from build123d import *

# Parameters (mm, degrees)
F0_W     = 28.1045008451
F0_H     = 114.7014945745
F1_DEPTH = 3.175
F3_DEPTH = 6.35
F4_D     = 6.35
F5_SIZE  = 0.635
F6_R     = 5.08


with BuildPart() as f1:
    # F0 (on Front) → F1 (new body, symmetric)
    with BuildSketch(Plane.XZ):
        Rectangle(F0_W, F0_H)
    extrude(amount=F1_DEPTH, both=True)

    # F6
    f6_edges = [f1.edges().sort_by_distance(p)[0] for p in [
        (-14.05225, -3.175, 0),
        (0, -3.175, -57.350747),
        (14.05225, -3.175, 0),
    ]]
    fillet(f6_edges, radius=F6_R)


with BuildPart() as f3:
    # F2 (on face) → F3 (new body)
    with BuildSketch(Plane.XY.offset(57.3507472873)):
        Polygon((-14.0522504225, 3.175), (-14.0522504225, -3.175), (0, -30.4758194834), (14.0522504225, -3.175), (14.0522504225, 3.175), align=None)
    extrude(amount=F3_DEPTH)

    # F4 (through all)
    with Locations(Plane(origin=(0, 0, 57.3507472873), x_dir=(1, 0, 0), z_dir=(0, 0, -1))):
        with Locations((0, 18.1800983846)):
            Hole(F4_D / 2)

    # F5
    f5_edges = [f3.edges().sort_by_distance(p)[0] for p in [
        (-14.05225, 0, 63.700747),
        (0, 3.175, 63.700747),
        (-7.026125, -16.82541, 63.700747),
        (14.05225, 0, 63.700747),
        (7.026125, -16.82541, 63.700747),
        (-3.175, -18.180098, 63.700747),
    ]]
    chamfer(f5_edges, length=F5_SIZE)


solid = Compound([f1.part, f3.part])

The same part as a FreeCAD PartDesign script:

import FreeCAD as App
import Part
import Sketcher
from FreeCAD import Vector
Q = App.Units.Quantity


def edges_at(feature, points):
    """Names of the edges that pass closest to the given points."""
    edges = feature.Shape.Edges
    near = lambda p: min(range(len(edges)), key=lambda i: edges[i].distToShape(Part.Vertex(*p))[0])
    return sorted({f"Edge{near(p) + 1}" for p in points})

doc = App.newDocument("Part")
body = doc.addObject("PartDesign::Body", "Body")

sketch1 = body.newObject("Sketcher::SketchObject", "Sketch")
sketch1.AttachmentSupport = (doc.getObject("XZ_Plane"), [""])
sketch1.MapMode = "FlatFace"
sketch1.addGeometry(Part.LineSegment(Vector(-14, 57, 0), Vector(-14, -57, 0)), False)
sketch1.addGeometry(Part.LineSegment(Vector(-14, -57, 0), Vector(14, -57, 0)), False)
sketch1.addGeometry(Part.LineSegment(Vector(14, -57, 0), Vector(14, 57, 0)), False)
sketch1.addGeometry(Part.LineSegment(Vector(14, 57, 0), Vector(-14, 57, 0)), False)
sketch1.addConstraint(Sketcher.Constraint("Coincident", 0, 2, 1, 1))
sketch1.addConstraint(Sketcher.Constraint("Coincident", 1, 2, 2, 1))
sketch1.addConstraint(Sketcher.Constraint("Coincident", 2, 2, 3, 1))
sketch1.addConstraint(Sketcher.Constraint("Coincident", 3, 2, 0, 1))
sketch1.addConstraint(Sketcher.Constraint("Vertical", 0))
sketch1.addConstraint(Sketcher.Constraint("Horizontal", 1))
sketch1.addConstraint(Sketcher.Constraint("Vertical", 2))
sketch1.addConstraint(Sketcher.Constraint("Horizontal", 3))
sketch1.addConstraint(Sketcher.Constraint("Symmetric", 0, 2, 2, 2, -1, 1))
sketch1.addConstraint(Sketcher.Constraint("DistanceX", 1, 1, 1, 2, 28.104501))
sketch1.addConstraint(Sketcher.Constraint("DistanceY", 0, 2, 0, 1, 114.701495))
pad1 = body.newObject("PartDesign::Pad", "Pad")
pad1.Profile = sketch1
pad1.Length = Q("0.25 in")
pad1.Midplane = True
doc.recompute()

fillet = body.newObject("PartDesign::Fillet", "Fillet")
fillet.Base = (pad1, edges_at(pad1, [(-14.052, -3.175, 0), (0, -3.175, -57.351), (14.052, -3.175, 0)]))
fillet.Radius = Q("0.2 in")
body2 = doc.addObject("PartDesign::Body", "Body001")

sketch2 = body2.newObject("Sketcher::SketchObject", "Sketch001")
sketch2.AttachmentSupport = (doc.getObject("XY_Plane001"), [""])
sketch2.MapMode = "FlatFace"
sketch2.AttachmentOffset = App.Placement(Vector(0, 0, 57.350747), App.Rotation())
sketch2.addGeometry(Part.LineSegment(Vector(-14, 3, 0), Vector(-14, -3, 0)), False)
sketch2.addGeometry(Part.LineSegment(Vector(-14, -3, 0), Vector(0, -30, 0)), False)
sketch2.addGeometry(Part.LineSegment(Vector(0, -30, 0), Vector(14, -3, 0)), False)
sketch2.addGeometry(Part.LineSegment(Vector(14, -3, 0), Vector(14, 3, 0)), False)
sketch2.addGeometry(Part.LineSegment(Vector(14, 3, 0), Vector(-14, 3, 0)), False)
sketch2.addConstraint(Sketcher.Constraint("Coincident", 0, 2, 1, 1))
sketch2.addConstraint(Sketcher.Constraint("Coincident", 1, 2, 2, 1))
sketch2.addConstraint(Sketcher.Constraint("Coincident", 2, 2, 3, 1))
sketch2.addConstraint(Sketcher.Constraint("Coincident", 3, 2, 4, 1))
sketch2.addConstraint(Sketcher.Constraint("Coincident", 4, 2, 0, 1))
sketch2.addConstraint(Sketcher.Constraint("Vertical", 0))
sketch2.addConstraint(Sketcher.Constraint("Vertical", 3))
sketch2.addConstraint(Sketcher.Constraint("Horizontal", 4))
sketch2.addConstraint(Sketcher.Constraint("Symmetric", 0, 2, 3, 2, -1, 1))
sketch2.addConstraint(Sketcher.Constraint("PointOnObject", 1, 2, -2))
sketch2.addConstraint(Sketcher.Constraint("Horizontal", 0, 2, 2, 2))
sketch2.addConstraint(Sketcher.Constraint("DistanceY", 0, 2, 0, 1, Q("0.25 in")))
sketch2.addConstraint(Sketcher.Constraint("DistanceX", 4, 2, 4, 1, 28.104501))
sketch2.addConstraint(Sketcher.Constraint("DistanceY", 1, 2, -1, 1, 30.475819))
pad2 = body2.newObject("PartDesign::Pad", "Pad001")
pad2.Profile = sketch2
pad2.Length = Q("0.25 in")

sketch3 = body2.newObject("Sketcher::SketchObject", "Sketch002")
sketch3.AttachmentSupport = (doc.getObject("XY_Plane001"), [""])
sketch3.MapMode = "FlatFace"
sketch3.AttachmentOffset = App.Placement(Vector(0, 0, 57.350747), App.Rotation())
sketch3.addGeometry(Part.Circle(Vector(0, -18.2, 0), Vector(0, 0, 1), 3.2), False)
sketch3.addConstraint(Sketcher.Constraint("PointOnObject", 0, 3, -2))
sketch3.addConstraint(Sketcher.Constraint("Diameter", 0, Q("0.25 in")))
sketch3.addConstraint(Sketcher.Constraint("DistanceY", 0, 3, -1, 1, 18.180098))
doc.recompute()
hole = body2.newObject("PartDesign::Hole", "Hole")
hole.Profile = sketch3
hole.ThreadType = "None"
hole.Diameter = Q("0.25 in")
hole.DepthType = "ThroughAll"
hole.Reversed = True
doc.recompute()

chamfer = body2.newObject("PartDesign::Chamfer", "Chamfer")
chamfer.Base = (hole, edges_at(hole, [
    (-14.052, 0, 63.701),
    (0, 3.175, 63.701),
    (-7.026, -16.825, 63.701),
    (14.052, 0, 63.701),
    (7.026, -16.825, 63.701),
    (3.175, -18.18, 63.701),
]))
chamfer.Size = Q("0.025 in")

doc.recompute()
